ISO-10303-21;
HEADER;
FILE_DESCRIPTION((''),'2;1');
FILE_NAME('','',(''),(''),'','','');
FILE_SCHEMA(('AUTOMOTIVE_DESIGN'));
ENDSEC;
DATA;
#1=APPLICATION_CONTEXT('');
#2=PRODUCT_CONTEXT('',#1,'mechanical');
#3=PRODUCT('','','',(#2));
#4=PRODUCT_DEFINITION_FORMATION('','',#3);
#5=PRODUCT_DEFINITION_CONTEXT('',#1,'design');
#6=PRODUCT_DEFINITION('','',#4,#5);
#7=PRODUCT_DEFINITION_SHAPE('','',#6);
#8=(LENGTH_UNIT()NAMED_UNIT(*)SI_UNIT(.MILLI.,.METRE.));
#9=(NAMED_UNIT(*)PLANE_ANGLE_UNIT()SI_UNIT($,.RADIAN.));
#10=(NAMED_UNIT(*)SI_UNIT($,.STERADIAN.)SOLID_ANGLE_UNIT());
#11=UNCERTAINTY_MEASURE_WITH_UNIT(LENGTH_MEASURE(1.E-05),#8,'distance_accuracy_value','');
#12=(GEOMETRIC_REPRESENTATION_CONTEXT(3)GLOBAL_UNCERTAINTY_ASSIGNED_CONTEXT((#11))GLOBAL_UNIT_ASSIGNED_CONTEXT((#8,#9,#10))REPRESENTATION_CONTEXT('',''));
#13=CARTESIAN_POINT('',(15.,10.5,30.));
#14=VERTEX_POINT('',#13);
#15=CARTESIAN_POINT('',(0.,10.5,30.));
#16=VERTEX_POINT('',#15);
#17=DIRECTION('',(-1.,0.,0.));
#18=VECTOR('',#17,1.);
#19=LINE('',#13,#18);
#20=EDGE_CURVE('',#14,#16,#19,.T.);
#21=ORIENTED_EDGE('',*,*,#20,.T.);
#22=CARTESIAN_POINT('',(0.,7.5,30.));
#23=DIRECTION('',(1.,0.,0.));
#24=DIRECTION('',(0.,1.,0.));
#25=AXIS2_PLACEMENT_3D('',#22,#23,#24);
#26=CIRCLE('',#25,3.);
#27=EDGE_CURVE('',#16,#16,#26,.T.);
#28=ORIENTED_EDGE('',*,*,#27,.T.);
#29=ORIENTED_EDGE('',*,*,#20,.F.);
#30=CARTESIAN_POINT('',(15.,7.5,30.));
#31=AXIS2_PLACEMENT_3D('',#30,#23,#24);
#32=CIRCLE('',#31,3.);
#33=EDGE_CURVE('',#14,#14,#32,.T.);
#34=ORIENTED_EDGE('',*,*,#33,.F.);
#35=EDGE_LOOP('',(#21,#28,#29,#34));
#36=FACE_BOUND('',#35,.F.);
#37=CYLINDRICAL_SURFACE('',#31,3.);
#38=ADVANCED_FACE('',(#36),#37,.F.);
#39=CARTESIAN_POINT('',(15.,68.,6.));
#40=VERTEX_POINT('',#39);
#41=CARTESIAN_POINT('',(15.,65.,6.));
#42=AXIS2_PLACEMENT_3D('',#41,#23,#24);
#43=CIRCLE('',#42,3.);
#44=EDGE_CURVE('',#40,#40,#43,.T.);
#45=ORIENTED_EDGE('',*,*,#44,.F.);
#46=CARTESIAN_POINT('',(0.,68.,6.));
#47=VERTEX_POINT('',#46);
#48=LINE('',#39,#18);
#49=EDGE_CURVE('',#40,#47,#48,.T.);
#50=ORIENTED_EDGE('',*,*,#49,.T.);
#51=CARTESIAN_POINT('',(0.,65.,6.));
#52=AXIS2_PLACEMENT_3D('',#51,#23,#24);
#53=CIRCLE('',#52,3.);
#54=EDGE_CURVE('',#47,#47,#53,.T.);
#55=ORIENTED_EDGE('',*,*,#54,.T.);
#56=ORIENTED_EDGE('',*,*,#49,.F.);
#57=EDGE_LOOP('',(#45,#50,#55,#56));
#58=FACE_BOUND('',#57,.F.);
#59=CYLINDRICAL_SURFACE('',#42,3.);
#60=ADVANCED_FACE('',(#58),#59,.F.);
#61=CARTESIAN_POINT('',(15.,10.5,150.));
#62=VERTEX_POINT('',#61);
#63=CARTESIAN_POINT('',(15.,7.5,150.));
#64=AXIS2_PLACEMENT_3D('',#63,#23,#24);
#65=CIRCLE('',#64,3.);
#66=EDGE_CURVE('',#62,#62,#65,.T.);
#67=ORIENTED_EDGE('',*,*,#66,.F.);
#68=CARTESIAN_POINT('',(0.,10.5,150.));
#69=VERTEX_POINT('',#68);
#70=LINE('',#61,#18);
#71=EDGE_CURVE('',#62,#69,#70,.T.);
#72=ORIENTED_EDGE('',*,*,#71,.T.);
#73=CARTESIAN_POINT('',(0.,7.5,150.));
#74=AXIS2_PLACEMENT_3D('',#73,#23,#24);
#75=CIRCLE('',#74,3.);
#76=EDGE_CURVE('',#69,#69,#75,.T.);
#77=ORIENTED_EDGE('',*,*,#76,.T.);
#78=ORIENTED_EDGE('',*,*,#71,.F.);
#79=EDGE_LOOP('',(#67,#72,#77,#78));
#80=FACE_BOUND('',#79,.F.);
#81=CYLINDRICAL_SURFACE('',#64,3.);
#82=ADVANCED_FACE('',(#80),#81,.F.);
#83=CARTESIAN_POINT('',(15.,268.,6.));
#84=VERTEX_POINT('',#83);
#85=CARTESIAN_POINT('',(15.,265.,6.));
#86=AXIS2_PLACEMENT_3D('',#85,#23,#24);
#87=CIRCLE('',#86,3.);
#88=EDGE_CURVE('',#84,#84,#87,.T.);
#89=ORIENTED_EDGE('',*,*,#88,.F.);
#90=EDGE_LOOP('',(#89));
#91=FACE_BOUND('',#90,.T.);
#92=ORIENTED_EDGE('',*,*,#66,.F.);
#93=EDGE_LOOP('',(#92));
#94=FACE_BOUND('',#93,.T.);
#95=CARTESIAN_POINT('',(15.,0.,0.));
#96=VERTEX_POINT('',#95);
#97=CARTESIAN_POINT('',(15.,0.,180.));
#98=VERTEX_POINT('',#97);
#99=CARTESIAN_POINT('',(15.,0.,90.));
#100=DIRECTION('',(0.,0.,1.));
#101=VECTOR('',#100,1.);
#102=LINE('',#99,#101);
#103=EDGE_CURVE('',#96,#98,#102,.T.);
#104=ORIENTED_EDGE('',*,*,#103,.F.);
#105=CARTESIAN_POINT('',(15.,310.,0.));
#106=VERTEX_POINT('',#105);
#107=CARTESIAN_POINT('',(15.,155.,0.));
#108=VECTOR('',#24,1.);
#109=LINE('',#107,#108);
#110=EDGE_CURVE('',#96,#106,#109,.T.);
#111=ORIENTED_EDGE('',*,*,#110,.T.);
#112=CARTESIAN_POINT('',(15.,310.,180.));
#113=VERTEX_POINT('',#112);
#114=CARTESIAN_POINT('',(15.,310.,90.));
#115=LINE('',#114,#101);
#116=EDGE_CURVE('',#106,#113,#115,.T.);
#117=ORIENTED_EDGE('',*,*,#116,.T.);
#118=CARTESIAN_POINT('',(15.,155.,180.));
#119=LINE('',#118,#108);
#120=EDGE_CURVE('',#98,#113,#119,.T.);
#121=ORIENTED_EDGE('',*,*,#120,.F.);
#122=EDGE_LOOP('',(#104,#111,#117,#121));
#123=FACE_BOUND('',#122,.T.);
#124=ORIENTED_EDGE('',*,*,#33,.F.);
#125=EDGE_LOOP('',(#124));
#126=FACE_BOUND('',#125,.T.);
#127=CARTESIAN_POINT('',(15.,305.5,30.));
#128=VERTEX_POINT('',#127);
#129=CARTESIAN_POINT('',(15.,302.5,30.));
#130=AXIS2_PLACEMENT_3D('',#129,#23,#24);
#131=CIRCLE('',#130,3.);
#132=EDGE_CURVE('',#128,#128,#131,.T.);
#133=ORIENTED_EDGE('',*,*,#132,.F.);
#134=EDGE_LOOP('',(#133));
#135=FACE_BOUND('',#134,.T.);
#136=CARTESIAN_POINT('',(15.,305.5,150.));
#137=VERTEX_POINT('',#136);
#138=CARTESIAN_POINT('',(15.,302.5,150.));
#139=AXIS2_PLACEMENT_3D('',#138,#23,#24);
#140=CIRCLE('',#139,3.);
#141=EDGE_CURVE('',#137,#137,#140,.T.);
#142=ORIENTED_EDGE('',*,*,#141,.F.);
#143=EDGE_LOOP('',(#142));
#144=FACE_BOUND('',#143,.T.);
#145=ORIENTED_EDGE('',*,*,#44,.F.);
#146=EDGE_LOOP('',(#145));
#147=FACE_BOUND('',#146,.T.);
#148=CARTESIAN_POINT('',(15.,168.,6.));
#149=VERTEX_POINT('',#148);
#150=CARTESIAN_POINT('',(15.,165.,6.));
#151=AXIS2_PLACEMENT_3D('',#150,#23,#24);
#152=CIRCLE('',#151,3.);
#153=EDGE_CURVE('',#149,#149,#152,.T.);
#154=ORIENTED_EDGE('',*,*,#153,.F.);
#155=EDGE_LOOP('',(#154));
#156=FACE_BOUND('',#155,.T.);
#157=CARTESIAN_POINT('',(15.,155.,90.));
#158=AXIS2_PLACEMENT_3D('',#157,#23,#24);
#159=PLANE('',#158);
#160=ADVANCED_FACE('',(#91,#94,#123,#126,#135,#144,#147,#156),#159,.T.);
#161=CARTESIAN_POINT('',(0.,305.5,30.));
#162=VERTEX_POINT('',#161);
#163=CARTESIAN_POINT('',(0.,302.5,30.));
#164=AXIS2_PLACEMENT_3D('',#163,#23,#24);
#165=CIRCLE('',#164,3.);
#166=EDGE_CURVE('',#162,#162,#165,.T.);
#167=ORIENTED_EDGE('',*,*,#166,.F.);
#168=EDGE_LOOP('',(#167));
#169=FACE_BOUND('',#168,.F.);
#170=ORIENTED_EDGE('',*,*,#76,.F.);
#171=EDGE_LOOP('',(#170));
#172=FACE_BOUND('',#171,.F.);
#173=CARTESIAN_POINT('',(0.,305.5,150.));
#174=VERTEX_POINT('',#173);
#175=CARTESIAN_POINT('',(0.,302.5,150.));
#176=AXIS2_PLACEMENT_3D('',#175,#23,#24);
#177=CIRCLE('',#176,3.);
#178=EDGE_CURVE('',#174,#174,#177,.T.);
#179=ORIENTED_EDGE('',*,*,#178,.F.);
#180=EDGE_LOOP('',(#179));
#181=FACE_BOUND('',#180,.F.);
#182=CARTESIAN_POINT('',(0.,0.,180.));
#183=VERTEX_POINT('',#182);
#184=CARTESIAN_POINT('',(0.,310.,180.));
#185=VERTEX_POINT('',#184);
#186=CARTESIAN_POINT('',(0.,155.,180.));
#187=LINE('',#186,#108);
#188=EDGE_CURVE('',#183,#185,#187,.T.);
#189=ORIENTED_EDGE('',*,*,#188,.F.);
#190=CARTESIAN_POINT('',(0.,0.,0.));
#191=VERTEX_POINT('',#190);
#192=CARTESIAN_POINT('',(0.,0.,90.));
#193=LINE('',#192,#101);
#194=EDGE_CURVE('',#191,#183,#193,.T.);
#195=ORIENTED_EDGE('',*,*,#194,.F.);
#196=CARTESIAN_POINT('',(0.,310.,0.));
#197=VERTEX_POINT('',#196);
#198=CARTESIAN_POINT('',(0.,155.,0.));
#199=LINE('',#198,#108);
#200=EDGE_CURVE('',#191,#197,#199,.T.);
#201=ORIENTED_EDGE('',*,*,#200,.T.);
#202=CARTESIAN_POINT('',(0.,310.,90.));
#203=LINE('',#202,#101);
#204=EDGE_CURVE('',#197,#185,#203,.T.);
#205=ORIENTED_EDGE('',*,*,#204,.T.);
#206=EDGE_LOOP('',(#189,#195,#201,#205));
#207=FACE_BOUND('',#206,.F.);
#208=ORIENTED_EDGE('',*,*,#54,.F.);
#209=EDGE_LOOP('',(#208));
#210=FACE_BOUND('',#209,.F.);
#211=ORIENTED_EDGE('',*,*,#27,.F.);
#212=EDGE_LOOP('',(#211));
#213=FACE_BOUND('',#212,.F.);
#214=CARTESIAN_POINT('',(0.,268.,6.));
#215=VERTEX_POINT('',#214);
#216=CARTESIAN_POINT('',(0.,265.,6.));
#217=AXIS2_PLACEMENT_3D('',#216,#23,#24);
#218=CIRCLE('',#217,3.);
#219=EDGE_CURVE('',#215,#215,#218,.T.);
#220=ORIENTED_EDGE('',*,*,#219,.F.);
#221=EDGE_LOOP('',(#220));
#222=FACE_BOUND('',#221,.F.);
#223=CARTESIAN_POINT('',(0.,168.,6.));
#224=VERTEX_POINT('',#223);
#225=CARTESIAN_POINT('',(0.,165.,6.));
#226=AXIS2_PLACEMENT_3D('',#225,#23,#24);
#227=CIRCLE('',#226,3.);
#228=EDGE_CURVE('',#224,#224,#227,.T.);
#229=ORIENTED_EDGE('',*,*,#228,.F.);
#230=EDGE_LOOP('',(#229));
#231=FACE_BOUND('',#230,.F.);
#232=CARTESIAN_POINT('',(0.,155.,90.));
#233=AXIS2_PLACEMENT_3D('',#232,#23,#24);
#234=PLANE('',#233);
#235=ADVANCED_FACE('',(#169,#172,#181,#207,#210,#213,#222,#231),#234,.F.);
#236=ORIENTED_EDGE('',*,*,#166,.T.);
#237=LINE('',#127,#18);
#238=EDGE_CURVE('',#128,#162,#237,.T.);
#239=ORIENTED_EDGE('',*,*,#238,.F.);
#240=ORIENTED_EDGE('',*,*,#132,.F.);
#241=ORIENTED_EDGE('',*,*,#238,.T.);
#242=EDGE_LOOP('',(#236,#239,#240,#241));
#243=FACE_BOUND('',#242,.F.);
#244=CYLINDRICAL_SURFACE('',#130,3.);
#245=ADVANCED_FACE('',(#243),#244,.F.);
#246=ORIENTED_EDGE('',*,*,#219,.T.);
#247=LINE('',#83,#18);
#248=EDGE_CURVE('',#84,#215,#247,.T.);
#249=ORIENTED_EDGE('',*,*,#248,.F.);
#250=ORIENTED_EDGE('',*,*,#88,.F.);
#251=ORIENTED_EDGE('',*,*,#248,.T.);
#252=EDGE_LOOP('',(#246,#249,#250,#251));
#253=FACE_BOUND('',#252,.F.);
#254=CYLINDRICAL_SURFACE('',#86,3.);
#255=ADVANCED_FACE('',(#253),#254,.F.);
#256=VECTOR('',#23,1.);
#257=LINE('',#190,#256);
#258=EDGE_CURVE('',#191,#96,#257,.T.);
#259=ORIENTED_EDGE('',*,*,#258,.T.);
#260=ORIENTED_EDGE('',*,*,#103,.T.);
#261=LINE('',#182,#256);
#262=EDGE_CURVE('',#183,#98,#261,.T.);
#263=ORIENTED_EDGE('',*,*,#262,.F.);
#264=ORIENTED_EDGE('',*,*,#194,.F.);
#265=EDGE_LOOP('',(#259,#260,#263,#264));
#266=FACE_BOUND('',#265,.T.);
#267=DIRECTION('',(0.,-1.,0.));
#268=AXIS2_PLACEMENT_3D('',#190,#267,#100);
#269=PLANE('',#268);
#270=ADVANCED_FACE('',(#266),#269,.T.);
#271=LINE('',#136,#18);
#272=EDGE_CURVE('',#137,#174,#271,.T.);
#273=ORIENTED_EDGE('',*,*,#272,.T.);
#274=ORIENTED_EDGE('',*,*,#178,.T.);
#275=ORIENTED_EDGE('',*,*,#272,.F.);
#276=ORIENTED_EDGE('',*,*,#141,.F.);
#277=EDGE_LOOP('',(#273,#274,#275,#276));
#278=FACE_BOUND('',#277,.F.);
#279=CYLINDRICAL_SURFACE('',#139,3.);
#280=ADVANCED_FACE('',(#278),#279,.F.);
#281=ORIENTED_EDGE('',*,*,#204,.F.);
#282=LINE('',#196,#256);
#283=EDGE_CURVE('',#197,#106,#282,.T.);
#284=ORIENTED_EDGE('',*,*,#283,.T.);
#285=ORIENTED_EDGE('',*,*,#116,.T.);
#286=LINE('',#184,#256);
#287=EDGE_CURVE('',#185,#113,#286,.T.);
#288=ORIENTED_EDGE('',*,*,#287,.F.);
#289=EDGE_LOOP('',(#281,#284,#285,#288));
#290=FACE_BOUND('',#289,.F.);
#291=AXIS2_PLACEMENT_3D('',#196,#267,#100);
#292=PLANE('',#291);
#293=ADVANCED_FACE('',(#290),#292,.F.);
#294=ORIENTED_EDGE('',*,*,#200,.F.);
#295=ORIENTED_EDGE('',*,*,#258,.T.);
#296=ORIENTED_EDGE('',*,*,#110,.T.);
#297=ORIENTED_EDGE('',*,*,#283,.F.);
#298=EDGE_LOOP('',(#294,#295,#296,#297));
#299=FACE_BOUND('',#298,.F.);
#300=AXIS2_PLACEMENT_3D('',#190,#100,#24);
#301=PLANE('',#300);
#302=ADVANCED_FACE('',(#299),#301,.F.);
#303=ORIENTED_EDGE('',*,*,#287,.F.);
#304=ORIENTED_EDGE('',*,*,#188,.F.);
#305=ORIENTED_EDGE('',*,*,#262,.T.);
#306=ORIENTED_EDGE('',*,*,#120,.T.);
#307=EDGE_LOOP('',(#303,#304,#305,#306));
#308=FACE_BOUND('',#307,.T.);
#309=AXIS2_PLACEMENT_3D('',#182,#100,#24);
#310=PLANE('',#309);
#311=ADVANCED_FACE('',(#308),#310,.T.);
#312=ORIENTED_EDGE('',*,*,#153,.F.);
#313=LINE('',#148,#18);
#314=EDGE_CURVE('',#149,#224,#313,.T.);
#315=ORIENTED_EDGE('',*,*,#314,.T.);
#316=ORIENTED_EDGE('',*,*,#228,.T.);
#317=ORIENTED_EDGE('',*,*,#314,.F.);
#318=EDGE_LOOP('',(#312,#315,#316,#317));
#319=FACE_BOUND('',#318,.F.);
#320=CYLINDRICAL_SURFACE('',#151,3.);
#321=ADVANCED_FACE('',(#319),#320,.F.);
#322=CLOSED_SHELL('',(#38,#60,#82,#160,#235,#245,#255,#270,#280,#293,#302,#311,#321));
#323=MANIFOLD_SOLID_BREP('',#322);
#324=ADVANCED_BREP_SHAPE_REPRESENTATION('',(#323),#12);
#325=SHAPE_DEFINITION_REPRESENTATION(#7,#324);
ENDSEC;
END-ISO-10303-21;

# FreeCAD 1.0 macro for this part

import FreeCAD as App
import Part
import Sketcher

V = App.Vector

doc = App.newDocument("Part")
body = doc.addObject("PartDesign::Body", "Body")

sketch1 = body.newObject("Sketcher::SketchObject", "Sketch")
sketch1.AttachmentSupport = (doc.getObject("YZ_Plane"), [""])
sketch1.MapMode = "FlatFace"
sketch1.addGeometry([
    Part.LineSegment(V(0, 180, 0), V(0, 0, 0)),
    Part.LineSegment(V(0, 0, 0), V(310, 0, 0)),
    Part.LineSegment(V(310, 0, 0), V(310, 180, 0)),
    Part.LineSegment(V(310, 180, 0), V(0, 180, 0)),
], False)
sketch1.addConstraint([
    Sketcher.Constraint("Coincident", 0, 2, 1, 1),
    Sketcher.Constraint("Coincident", 1, 2, 2, 1),
    Sketcher.Constraint("Coincident", 2, 2, 3, 1),
    Sketcher.Constraint("Coincident", 3, 2, 0, 1),
    Sketcher.Constraint("Vertical", 0),
    Sketcher.Constraint("Horizontal", 1),
    Sketcher.Constraint("Vertical", 2),
    Sketcher.Constraint("Horizontal", 3),
    Sketcher.Constraint("Coincident", 0, 2, -1, 1),
    Sketcher.Constraint("DistanceX", 1, 1, 1, 2, 310.0),
    Sketcher.Constraint("DistanceY", 0, 2, 0, 1, 180.0),
])
pad1 = body.newObject("PartDesign::Pad", "Pad")
pad1.Profile = sketch1
pad1.Length = 15

sketch2 = body.newObject("Sketcher::SketchObject", "Sketch001")
sketch2.AttachmentSupport = (doc.getObject("YZ_Plane"), [""])
sketch2.MapMode = "FlatFace"
sketch2.AttachmentOffset = App.Placement(V(0, 0, 15), App.Rotation())
sketch2.addGeometry([
    Part.Circle(V(7.5, 30, 0), V(0, 0, 1), 3),
    Part.Circle(V(7.5, 150, 0), V(0, 0, 1), 3),
    Part.Circle(V(302.5, 150, 0), V(0, 0, 1), 3),
    Part.Circle(V(302.5, 30, 0), V(0, 0, 1), 3),
    Part.Circle(V(65, 6, 0), V(0, 0, 1), 3),
    Part.Circle(V(165, 6, 0), V(0, 0, 1), 3),
    Part.Circle(V(265, 6, 0), V(0, 0, 1), 3),
], False)
sketch2.addConstraint([
    Sketcher.Constraint("Equal", 0, 1),
    Sketcher.Constraint("Equal", 1, 2),
    Sketcher.Constraint("Equal", 2, 3),
    Sketcher.Constraint("Equal", 3, 4),
    Sketcher.Constraint("Equal", 4, 5),
    Sketcher.Constraint("Equal", 5, 6),
    Sketcher.Constraint("Horizontal", 1, 3, 2, 3),
    Sketcher.Constraint("Horizontal", 0, 3, 3, 3),
    Sketcher.Constraint("Horizontal", 4, 3, 5, 3),
    Sketcher.Constraint("Horizontal", 5, 3, 6, 3),
    Sketcher.Constraint("Vertical", 0, 3, 1, 3),
    Sketcher.Constraint("Vertical", 2, 3, 3, 3),
    Sketcher.Constraint("Diameter", 0, 6.0),
    Sketcher.Constraint("DistanceY", -1, 1, 0, 3, 30.0),
    Sketcher.Constraint("DistanceY", -1, 1, 1, 3, 150.0),
    Sketcher.Constraint("DistanceX", -1, 1, 4, 3, 65.0),
    Sketcher.Constraint("DistanceY", -1, 1, 4, 3, 6.0),
    Sketcher.Constraint("DistanceX", -1, 1, 5, 3, 165.0),
    Sketcher.Constraint("DistanceX", -1, 1, 6, 3, 265.0),
    Sketcher.Constraint("DistanceX", 1, 3, 2, 3, 295.0),
    Sketcher.Constraint("DistanceX", -1, 1, 0, 3, 7.5),
])
pocket1 = body.newObject("PartDesign::Pocket", "Pocket")
pocket1.Profile = sketch2
pocket1.Type = "ThroughAll"

doc.recompute()
